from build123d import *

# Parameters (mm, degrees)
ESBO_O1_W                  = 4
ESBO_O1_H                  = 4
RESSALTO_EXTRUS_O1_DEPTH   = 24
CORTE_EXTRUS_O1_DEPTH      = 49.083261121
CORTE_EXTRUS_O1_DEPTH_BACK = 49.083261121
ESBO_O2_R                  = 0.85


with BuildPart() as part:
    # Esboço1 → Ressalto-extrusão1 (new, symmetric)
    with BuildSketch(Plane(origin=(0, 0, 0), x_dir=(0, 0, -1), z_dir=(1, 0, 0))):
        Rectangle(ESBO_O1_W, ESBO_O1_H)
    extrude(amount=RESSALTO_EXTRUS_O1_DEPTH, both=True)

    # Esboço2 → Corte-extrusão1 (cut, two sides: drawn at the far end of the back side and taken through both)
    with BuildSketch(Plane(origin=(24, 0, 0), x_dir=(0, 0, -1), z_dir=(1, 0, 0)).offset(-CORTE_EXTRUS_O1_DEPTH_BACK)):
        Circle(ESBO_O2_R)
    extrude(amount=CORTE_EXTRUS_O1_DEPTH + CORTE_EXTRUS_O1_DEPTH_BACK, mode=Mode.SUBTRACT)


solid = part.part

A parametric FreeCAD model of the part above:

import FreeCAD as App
import Part
import Sketcher

doc = App.newDocument("Part")
body = doc.addObject("PartDesign::Body", "Body")

# Sketch on YZ plane
sketch1 = body.newObject("Sketcher::SketchObject", "Sketch")
sketch1.AttachmentSupport = (doc.getObject("YZ_Plane"), [""])
sketch1.MapMode = "FlatFace"
sketch1.addGeometry(Part.LineSegment(App.Vector(2, 2, 0), App.Vector(-2, 2, 0)), False)
sketch1.addGeometry(Part.LineSegment(App.Vector(-2, 2, 0), App.Vector(-2, -2, 0)), False)
sketch1.addGeometry(Part.LineSegment(App.Vector(-2, -2, 0), App.Vector(2, -2, 0)), False)
sketch1.addGeometry(Part.LineSegment(App.Vector(2, -2, 0), App.Vector(2, 2, 0)), False)
sketch1.addConstraint(Sketcher.Constraint("Coincident", 0, 2, 1, 1))
sketch1.addConstraint(Sketcher.Constraint("Coincident", 1, 2, 2, 1))
sketch1.addConstraint(Sketcher.Constraint("Coincident", 2, 2, 3, 1))
sketch1.addConstraint(Sketcher.Constraint("Coincident", 3, 2, 0, 1))
sketch1.addConstraint(Sketcher.Constraint("Horizontal", 0))
sketch1.addConstraint(Sketcher.Constraint("Vertical", 1))
sketch1.addConstraint(Sketcher.Constraint("Horizontal", 2))
sketch1.addConstraint(Sketcher.Constraint("Vertical", 3))
sketch1.addConstraint(Sketcher.Constraint("Symmetric", 0, 2, 2, 2, -1, 1))
sketch1.addConstraint(Sketcher.Constraint("Equal", 2, 1))
sketch1.addConstraint(Sketcher.Constraint("DistanceX", 0, 2, 0, 1, 4.0))
pad1 = body.newObject("PartDesign::Pad", "Pad")
pad1.Profile = sketch1
pad1.Length = 48
pad1.Midplane = True

# Sketch on YZ plane
sketch2 = body.newObject("Sketcher::SketchObject", "Sketch001")
sketch2.AttachmentSupport = (doc.getObject("YZ_Plane"), [""])
sketch2.MapMode = "FlatFace"
sketch2.AttachmentOffset = App.Placement(App.Vector(0, 0, 24), App.Rotation())
sketch2.addGeometry(Part.Circle(App.Vector(0, 0, 0), App.Vector(0, 0, 1), 0.8), False)
sketch2.addConstraint(Sketcher.Constraint("Coincident", 0, 3, -1, 1))
sketch2.addConstraint(Sketcher.Constraint("Diameter", 0, 1.7))
pocket1 = body.newObject("PartDesign::Pocket", "Pocket")
pocket1.Profile = sketch2
pocket1.Type = "ThroughAll"
pocket1.Midplane = True

doc.recompute()
